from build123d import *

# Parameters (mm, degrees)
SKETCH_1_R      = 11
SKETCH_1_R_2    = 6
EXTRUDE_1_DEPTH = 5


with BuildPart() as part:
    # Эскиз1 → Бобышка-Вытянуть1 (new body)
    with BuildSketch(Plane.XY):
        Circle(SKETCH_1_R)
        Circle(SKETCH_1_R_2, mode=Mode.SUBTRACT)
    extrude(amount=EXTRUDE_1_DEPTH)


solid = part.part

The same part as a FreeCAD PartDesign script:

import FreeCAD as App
import Part
import Sketcher
from FreeCAD import Vector

doc = App.newDocument("Part")
body = doc.addObject("PartDesign::Body", "Body")

sketch1 = body.newObject("Sketcher::SketchObject", "Sketch")
sketch1.AttachmentSupport = (doc.getObject("XY_Plane"), [""])
sketch1.MapMode = "FlatFace"
sketch1.addGeometry([
    Part.Circle(Vector(0, 0, 0), Vector(0, 0, 1), 11),
    Part.Circle(Vector(0, 0, 0), Vector(0, 0, 1), 6),
], False)
sketch1.addConstraint([
    Sketcher.Constraint("Coincident", 0, 3, -1, 1),
    Sketcher.Constraint("Coincident", 1, 3, -1, 1),
    Sketcher.Constraint("Diameter", 0, 22.0),
    Sketcher.Constraint("Diameter", 1, 12.0),
])
pad1 = body.newObject("PartDesign::Pad", "Pad")
pad1.Profile = sketch1
pad1.Length = 5

doc.recompute()
